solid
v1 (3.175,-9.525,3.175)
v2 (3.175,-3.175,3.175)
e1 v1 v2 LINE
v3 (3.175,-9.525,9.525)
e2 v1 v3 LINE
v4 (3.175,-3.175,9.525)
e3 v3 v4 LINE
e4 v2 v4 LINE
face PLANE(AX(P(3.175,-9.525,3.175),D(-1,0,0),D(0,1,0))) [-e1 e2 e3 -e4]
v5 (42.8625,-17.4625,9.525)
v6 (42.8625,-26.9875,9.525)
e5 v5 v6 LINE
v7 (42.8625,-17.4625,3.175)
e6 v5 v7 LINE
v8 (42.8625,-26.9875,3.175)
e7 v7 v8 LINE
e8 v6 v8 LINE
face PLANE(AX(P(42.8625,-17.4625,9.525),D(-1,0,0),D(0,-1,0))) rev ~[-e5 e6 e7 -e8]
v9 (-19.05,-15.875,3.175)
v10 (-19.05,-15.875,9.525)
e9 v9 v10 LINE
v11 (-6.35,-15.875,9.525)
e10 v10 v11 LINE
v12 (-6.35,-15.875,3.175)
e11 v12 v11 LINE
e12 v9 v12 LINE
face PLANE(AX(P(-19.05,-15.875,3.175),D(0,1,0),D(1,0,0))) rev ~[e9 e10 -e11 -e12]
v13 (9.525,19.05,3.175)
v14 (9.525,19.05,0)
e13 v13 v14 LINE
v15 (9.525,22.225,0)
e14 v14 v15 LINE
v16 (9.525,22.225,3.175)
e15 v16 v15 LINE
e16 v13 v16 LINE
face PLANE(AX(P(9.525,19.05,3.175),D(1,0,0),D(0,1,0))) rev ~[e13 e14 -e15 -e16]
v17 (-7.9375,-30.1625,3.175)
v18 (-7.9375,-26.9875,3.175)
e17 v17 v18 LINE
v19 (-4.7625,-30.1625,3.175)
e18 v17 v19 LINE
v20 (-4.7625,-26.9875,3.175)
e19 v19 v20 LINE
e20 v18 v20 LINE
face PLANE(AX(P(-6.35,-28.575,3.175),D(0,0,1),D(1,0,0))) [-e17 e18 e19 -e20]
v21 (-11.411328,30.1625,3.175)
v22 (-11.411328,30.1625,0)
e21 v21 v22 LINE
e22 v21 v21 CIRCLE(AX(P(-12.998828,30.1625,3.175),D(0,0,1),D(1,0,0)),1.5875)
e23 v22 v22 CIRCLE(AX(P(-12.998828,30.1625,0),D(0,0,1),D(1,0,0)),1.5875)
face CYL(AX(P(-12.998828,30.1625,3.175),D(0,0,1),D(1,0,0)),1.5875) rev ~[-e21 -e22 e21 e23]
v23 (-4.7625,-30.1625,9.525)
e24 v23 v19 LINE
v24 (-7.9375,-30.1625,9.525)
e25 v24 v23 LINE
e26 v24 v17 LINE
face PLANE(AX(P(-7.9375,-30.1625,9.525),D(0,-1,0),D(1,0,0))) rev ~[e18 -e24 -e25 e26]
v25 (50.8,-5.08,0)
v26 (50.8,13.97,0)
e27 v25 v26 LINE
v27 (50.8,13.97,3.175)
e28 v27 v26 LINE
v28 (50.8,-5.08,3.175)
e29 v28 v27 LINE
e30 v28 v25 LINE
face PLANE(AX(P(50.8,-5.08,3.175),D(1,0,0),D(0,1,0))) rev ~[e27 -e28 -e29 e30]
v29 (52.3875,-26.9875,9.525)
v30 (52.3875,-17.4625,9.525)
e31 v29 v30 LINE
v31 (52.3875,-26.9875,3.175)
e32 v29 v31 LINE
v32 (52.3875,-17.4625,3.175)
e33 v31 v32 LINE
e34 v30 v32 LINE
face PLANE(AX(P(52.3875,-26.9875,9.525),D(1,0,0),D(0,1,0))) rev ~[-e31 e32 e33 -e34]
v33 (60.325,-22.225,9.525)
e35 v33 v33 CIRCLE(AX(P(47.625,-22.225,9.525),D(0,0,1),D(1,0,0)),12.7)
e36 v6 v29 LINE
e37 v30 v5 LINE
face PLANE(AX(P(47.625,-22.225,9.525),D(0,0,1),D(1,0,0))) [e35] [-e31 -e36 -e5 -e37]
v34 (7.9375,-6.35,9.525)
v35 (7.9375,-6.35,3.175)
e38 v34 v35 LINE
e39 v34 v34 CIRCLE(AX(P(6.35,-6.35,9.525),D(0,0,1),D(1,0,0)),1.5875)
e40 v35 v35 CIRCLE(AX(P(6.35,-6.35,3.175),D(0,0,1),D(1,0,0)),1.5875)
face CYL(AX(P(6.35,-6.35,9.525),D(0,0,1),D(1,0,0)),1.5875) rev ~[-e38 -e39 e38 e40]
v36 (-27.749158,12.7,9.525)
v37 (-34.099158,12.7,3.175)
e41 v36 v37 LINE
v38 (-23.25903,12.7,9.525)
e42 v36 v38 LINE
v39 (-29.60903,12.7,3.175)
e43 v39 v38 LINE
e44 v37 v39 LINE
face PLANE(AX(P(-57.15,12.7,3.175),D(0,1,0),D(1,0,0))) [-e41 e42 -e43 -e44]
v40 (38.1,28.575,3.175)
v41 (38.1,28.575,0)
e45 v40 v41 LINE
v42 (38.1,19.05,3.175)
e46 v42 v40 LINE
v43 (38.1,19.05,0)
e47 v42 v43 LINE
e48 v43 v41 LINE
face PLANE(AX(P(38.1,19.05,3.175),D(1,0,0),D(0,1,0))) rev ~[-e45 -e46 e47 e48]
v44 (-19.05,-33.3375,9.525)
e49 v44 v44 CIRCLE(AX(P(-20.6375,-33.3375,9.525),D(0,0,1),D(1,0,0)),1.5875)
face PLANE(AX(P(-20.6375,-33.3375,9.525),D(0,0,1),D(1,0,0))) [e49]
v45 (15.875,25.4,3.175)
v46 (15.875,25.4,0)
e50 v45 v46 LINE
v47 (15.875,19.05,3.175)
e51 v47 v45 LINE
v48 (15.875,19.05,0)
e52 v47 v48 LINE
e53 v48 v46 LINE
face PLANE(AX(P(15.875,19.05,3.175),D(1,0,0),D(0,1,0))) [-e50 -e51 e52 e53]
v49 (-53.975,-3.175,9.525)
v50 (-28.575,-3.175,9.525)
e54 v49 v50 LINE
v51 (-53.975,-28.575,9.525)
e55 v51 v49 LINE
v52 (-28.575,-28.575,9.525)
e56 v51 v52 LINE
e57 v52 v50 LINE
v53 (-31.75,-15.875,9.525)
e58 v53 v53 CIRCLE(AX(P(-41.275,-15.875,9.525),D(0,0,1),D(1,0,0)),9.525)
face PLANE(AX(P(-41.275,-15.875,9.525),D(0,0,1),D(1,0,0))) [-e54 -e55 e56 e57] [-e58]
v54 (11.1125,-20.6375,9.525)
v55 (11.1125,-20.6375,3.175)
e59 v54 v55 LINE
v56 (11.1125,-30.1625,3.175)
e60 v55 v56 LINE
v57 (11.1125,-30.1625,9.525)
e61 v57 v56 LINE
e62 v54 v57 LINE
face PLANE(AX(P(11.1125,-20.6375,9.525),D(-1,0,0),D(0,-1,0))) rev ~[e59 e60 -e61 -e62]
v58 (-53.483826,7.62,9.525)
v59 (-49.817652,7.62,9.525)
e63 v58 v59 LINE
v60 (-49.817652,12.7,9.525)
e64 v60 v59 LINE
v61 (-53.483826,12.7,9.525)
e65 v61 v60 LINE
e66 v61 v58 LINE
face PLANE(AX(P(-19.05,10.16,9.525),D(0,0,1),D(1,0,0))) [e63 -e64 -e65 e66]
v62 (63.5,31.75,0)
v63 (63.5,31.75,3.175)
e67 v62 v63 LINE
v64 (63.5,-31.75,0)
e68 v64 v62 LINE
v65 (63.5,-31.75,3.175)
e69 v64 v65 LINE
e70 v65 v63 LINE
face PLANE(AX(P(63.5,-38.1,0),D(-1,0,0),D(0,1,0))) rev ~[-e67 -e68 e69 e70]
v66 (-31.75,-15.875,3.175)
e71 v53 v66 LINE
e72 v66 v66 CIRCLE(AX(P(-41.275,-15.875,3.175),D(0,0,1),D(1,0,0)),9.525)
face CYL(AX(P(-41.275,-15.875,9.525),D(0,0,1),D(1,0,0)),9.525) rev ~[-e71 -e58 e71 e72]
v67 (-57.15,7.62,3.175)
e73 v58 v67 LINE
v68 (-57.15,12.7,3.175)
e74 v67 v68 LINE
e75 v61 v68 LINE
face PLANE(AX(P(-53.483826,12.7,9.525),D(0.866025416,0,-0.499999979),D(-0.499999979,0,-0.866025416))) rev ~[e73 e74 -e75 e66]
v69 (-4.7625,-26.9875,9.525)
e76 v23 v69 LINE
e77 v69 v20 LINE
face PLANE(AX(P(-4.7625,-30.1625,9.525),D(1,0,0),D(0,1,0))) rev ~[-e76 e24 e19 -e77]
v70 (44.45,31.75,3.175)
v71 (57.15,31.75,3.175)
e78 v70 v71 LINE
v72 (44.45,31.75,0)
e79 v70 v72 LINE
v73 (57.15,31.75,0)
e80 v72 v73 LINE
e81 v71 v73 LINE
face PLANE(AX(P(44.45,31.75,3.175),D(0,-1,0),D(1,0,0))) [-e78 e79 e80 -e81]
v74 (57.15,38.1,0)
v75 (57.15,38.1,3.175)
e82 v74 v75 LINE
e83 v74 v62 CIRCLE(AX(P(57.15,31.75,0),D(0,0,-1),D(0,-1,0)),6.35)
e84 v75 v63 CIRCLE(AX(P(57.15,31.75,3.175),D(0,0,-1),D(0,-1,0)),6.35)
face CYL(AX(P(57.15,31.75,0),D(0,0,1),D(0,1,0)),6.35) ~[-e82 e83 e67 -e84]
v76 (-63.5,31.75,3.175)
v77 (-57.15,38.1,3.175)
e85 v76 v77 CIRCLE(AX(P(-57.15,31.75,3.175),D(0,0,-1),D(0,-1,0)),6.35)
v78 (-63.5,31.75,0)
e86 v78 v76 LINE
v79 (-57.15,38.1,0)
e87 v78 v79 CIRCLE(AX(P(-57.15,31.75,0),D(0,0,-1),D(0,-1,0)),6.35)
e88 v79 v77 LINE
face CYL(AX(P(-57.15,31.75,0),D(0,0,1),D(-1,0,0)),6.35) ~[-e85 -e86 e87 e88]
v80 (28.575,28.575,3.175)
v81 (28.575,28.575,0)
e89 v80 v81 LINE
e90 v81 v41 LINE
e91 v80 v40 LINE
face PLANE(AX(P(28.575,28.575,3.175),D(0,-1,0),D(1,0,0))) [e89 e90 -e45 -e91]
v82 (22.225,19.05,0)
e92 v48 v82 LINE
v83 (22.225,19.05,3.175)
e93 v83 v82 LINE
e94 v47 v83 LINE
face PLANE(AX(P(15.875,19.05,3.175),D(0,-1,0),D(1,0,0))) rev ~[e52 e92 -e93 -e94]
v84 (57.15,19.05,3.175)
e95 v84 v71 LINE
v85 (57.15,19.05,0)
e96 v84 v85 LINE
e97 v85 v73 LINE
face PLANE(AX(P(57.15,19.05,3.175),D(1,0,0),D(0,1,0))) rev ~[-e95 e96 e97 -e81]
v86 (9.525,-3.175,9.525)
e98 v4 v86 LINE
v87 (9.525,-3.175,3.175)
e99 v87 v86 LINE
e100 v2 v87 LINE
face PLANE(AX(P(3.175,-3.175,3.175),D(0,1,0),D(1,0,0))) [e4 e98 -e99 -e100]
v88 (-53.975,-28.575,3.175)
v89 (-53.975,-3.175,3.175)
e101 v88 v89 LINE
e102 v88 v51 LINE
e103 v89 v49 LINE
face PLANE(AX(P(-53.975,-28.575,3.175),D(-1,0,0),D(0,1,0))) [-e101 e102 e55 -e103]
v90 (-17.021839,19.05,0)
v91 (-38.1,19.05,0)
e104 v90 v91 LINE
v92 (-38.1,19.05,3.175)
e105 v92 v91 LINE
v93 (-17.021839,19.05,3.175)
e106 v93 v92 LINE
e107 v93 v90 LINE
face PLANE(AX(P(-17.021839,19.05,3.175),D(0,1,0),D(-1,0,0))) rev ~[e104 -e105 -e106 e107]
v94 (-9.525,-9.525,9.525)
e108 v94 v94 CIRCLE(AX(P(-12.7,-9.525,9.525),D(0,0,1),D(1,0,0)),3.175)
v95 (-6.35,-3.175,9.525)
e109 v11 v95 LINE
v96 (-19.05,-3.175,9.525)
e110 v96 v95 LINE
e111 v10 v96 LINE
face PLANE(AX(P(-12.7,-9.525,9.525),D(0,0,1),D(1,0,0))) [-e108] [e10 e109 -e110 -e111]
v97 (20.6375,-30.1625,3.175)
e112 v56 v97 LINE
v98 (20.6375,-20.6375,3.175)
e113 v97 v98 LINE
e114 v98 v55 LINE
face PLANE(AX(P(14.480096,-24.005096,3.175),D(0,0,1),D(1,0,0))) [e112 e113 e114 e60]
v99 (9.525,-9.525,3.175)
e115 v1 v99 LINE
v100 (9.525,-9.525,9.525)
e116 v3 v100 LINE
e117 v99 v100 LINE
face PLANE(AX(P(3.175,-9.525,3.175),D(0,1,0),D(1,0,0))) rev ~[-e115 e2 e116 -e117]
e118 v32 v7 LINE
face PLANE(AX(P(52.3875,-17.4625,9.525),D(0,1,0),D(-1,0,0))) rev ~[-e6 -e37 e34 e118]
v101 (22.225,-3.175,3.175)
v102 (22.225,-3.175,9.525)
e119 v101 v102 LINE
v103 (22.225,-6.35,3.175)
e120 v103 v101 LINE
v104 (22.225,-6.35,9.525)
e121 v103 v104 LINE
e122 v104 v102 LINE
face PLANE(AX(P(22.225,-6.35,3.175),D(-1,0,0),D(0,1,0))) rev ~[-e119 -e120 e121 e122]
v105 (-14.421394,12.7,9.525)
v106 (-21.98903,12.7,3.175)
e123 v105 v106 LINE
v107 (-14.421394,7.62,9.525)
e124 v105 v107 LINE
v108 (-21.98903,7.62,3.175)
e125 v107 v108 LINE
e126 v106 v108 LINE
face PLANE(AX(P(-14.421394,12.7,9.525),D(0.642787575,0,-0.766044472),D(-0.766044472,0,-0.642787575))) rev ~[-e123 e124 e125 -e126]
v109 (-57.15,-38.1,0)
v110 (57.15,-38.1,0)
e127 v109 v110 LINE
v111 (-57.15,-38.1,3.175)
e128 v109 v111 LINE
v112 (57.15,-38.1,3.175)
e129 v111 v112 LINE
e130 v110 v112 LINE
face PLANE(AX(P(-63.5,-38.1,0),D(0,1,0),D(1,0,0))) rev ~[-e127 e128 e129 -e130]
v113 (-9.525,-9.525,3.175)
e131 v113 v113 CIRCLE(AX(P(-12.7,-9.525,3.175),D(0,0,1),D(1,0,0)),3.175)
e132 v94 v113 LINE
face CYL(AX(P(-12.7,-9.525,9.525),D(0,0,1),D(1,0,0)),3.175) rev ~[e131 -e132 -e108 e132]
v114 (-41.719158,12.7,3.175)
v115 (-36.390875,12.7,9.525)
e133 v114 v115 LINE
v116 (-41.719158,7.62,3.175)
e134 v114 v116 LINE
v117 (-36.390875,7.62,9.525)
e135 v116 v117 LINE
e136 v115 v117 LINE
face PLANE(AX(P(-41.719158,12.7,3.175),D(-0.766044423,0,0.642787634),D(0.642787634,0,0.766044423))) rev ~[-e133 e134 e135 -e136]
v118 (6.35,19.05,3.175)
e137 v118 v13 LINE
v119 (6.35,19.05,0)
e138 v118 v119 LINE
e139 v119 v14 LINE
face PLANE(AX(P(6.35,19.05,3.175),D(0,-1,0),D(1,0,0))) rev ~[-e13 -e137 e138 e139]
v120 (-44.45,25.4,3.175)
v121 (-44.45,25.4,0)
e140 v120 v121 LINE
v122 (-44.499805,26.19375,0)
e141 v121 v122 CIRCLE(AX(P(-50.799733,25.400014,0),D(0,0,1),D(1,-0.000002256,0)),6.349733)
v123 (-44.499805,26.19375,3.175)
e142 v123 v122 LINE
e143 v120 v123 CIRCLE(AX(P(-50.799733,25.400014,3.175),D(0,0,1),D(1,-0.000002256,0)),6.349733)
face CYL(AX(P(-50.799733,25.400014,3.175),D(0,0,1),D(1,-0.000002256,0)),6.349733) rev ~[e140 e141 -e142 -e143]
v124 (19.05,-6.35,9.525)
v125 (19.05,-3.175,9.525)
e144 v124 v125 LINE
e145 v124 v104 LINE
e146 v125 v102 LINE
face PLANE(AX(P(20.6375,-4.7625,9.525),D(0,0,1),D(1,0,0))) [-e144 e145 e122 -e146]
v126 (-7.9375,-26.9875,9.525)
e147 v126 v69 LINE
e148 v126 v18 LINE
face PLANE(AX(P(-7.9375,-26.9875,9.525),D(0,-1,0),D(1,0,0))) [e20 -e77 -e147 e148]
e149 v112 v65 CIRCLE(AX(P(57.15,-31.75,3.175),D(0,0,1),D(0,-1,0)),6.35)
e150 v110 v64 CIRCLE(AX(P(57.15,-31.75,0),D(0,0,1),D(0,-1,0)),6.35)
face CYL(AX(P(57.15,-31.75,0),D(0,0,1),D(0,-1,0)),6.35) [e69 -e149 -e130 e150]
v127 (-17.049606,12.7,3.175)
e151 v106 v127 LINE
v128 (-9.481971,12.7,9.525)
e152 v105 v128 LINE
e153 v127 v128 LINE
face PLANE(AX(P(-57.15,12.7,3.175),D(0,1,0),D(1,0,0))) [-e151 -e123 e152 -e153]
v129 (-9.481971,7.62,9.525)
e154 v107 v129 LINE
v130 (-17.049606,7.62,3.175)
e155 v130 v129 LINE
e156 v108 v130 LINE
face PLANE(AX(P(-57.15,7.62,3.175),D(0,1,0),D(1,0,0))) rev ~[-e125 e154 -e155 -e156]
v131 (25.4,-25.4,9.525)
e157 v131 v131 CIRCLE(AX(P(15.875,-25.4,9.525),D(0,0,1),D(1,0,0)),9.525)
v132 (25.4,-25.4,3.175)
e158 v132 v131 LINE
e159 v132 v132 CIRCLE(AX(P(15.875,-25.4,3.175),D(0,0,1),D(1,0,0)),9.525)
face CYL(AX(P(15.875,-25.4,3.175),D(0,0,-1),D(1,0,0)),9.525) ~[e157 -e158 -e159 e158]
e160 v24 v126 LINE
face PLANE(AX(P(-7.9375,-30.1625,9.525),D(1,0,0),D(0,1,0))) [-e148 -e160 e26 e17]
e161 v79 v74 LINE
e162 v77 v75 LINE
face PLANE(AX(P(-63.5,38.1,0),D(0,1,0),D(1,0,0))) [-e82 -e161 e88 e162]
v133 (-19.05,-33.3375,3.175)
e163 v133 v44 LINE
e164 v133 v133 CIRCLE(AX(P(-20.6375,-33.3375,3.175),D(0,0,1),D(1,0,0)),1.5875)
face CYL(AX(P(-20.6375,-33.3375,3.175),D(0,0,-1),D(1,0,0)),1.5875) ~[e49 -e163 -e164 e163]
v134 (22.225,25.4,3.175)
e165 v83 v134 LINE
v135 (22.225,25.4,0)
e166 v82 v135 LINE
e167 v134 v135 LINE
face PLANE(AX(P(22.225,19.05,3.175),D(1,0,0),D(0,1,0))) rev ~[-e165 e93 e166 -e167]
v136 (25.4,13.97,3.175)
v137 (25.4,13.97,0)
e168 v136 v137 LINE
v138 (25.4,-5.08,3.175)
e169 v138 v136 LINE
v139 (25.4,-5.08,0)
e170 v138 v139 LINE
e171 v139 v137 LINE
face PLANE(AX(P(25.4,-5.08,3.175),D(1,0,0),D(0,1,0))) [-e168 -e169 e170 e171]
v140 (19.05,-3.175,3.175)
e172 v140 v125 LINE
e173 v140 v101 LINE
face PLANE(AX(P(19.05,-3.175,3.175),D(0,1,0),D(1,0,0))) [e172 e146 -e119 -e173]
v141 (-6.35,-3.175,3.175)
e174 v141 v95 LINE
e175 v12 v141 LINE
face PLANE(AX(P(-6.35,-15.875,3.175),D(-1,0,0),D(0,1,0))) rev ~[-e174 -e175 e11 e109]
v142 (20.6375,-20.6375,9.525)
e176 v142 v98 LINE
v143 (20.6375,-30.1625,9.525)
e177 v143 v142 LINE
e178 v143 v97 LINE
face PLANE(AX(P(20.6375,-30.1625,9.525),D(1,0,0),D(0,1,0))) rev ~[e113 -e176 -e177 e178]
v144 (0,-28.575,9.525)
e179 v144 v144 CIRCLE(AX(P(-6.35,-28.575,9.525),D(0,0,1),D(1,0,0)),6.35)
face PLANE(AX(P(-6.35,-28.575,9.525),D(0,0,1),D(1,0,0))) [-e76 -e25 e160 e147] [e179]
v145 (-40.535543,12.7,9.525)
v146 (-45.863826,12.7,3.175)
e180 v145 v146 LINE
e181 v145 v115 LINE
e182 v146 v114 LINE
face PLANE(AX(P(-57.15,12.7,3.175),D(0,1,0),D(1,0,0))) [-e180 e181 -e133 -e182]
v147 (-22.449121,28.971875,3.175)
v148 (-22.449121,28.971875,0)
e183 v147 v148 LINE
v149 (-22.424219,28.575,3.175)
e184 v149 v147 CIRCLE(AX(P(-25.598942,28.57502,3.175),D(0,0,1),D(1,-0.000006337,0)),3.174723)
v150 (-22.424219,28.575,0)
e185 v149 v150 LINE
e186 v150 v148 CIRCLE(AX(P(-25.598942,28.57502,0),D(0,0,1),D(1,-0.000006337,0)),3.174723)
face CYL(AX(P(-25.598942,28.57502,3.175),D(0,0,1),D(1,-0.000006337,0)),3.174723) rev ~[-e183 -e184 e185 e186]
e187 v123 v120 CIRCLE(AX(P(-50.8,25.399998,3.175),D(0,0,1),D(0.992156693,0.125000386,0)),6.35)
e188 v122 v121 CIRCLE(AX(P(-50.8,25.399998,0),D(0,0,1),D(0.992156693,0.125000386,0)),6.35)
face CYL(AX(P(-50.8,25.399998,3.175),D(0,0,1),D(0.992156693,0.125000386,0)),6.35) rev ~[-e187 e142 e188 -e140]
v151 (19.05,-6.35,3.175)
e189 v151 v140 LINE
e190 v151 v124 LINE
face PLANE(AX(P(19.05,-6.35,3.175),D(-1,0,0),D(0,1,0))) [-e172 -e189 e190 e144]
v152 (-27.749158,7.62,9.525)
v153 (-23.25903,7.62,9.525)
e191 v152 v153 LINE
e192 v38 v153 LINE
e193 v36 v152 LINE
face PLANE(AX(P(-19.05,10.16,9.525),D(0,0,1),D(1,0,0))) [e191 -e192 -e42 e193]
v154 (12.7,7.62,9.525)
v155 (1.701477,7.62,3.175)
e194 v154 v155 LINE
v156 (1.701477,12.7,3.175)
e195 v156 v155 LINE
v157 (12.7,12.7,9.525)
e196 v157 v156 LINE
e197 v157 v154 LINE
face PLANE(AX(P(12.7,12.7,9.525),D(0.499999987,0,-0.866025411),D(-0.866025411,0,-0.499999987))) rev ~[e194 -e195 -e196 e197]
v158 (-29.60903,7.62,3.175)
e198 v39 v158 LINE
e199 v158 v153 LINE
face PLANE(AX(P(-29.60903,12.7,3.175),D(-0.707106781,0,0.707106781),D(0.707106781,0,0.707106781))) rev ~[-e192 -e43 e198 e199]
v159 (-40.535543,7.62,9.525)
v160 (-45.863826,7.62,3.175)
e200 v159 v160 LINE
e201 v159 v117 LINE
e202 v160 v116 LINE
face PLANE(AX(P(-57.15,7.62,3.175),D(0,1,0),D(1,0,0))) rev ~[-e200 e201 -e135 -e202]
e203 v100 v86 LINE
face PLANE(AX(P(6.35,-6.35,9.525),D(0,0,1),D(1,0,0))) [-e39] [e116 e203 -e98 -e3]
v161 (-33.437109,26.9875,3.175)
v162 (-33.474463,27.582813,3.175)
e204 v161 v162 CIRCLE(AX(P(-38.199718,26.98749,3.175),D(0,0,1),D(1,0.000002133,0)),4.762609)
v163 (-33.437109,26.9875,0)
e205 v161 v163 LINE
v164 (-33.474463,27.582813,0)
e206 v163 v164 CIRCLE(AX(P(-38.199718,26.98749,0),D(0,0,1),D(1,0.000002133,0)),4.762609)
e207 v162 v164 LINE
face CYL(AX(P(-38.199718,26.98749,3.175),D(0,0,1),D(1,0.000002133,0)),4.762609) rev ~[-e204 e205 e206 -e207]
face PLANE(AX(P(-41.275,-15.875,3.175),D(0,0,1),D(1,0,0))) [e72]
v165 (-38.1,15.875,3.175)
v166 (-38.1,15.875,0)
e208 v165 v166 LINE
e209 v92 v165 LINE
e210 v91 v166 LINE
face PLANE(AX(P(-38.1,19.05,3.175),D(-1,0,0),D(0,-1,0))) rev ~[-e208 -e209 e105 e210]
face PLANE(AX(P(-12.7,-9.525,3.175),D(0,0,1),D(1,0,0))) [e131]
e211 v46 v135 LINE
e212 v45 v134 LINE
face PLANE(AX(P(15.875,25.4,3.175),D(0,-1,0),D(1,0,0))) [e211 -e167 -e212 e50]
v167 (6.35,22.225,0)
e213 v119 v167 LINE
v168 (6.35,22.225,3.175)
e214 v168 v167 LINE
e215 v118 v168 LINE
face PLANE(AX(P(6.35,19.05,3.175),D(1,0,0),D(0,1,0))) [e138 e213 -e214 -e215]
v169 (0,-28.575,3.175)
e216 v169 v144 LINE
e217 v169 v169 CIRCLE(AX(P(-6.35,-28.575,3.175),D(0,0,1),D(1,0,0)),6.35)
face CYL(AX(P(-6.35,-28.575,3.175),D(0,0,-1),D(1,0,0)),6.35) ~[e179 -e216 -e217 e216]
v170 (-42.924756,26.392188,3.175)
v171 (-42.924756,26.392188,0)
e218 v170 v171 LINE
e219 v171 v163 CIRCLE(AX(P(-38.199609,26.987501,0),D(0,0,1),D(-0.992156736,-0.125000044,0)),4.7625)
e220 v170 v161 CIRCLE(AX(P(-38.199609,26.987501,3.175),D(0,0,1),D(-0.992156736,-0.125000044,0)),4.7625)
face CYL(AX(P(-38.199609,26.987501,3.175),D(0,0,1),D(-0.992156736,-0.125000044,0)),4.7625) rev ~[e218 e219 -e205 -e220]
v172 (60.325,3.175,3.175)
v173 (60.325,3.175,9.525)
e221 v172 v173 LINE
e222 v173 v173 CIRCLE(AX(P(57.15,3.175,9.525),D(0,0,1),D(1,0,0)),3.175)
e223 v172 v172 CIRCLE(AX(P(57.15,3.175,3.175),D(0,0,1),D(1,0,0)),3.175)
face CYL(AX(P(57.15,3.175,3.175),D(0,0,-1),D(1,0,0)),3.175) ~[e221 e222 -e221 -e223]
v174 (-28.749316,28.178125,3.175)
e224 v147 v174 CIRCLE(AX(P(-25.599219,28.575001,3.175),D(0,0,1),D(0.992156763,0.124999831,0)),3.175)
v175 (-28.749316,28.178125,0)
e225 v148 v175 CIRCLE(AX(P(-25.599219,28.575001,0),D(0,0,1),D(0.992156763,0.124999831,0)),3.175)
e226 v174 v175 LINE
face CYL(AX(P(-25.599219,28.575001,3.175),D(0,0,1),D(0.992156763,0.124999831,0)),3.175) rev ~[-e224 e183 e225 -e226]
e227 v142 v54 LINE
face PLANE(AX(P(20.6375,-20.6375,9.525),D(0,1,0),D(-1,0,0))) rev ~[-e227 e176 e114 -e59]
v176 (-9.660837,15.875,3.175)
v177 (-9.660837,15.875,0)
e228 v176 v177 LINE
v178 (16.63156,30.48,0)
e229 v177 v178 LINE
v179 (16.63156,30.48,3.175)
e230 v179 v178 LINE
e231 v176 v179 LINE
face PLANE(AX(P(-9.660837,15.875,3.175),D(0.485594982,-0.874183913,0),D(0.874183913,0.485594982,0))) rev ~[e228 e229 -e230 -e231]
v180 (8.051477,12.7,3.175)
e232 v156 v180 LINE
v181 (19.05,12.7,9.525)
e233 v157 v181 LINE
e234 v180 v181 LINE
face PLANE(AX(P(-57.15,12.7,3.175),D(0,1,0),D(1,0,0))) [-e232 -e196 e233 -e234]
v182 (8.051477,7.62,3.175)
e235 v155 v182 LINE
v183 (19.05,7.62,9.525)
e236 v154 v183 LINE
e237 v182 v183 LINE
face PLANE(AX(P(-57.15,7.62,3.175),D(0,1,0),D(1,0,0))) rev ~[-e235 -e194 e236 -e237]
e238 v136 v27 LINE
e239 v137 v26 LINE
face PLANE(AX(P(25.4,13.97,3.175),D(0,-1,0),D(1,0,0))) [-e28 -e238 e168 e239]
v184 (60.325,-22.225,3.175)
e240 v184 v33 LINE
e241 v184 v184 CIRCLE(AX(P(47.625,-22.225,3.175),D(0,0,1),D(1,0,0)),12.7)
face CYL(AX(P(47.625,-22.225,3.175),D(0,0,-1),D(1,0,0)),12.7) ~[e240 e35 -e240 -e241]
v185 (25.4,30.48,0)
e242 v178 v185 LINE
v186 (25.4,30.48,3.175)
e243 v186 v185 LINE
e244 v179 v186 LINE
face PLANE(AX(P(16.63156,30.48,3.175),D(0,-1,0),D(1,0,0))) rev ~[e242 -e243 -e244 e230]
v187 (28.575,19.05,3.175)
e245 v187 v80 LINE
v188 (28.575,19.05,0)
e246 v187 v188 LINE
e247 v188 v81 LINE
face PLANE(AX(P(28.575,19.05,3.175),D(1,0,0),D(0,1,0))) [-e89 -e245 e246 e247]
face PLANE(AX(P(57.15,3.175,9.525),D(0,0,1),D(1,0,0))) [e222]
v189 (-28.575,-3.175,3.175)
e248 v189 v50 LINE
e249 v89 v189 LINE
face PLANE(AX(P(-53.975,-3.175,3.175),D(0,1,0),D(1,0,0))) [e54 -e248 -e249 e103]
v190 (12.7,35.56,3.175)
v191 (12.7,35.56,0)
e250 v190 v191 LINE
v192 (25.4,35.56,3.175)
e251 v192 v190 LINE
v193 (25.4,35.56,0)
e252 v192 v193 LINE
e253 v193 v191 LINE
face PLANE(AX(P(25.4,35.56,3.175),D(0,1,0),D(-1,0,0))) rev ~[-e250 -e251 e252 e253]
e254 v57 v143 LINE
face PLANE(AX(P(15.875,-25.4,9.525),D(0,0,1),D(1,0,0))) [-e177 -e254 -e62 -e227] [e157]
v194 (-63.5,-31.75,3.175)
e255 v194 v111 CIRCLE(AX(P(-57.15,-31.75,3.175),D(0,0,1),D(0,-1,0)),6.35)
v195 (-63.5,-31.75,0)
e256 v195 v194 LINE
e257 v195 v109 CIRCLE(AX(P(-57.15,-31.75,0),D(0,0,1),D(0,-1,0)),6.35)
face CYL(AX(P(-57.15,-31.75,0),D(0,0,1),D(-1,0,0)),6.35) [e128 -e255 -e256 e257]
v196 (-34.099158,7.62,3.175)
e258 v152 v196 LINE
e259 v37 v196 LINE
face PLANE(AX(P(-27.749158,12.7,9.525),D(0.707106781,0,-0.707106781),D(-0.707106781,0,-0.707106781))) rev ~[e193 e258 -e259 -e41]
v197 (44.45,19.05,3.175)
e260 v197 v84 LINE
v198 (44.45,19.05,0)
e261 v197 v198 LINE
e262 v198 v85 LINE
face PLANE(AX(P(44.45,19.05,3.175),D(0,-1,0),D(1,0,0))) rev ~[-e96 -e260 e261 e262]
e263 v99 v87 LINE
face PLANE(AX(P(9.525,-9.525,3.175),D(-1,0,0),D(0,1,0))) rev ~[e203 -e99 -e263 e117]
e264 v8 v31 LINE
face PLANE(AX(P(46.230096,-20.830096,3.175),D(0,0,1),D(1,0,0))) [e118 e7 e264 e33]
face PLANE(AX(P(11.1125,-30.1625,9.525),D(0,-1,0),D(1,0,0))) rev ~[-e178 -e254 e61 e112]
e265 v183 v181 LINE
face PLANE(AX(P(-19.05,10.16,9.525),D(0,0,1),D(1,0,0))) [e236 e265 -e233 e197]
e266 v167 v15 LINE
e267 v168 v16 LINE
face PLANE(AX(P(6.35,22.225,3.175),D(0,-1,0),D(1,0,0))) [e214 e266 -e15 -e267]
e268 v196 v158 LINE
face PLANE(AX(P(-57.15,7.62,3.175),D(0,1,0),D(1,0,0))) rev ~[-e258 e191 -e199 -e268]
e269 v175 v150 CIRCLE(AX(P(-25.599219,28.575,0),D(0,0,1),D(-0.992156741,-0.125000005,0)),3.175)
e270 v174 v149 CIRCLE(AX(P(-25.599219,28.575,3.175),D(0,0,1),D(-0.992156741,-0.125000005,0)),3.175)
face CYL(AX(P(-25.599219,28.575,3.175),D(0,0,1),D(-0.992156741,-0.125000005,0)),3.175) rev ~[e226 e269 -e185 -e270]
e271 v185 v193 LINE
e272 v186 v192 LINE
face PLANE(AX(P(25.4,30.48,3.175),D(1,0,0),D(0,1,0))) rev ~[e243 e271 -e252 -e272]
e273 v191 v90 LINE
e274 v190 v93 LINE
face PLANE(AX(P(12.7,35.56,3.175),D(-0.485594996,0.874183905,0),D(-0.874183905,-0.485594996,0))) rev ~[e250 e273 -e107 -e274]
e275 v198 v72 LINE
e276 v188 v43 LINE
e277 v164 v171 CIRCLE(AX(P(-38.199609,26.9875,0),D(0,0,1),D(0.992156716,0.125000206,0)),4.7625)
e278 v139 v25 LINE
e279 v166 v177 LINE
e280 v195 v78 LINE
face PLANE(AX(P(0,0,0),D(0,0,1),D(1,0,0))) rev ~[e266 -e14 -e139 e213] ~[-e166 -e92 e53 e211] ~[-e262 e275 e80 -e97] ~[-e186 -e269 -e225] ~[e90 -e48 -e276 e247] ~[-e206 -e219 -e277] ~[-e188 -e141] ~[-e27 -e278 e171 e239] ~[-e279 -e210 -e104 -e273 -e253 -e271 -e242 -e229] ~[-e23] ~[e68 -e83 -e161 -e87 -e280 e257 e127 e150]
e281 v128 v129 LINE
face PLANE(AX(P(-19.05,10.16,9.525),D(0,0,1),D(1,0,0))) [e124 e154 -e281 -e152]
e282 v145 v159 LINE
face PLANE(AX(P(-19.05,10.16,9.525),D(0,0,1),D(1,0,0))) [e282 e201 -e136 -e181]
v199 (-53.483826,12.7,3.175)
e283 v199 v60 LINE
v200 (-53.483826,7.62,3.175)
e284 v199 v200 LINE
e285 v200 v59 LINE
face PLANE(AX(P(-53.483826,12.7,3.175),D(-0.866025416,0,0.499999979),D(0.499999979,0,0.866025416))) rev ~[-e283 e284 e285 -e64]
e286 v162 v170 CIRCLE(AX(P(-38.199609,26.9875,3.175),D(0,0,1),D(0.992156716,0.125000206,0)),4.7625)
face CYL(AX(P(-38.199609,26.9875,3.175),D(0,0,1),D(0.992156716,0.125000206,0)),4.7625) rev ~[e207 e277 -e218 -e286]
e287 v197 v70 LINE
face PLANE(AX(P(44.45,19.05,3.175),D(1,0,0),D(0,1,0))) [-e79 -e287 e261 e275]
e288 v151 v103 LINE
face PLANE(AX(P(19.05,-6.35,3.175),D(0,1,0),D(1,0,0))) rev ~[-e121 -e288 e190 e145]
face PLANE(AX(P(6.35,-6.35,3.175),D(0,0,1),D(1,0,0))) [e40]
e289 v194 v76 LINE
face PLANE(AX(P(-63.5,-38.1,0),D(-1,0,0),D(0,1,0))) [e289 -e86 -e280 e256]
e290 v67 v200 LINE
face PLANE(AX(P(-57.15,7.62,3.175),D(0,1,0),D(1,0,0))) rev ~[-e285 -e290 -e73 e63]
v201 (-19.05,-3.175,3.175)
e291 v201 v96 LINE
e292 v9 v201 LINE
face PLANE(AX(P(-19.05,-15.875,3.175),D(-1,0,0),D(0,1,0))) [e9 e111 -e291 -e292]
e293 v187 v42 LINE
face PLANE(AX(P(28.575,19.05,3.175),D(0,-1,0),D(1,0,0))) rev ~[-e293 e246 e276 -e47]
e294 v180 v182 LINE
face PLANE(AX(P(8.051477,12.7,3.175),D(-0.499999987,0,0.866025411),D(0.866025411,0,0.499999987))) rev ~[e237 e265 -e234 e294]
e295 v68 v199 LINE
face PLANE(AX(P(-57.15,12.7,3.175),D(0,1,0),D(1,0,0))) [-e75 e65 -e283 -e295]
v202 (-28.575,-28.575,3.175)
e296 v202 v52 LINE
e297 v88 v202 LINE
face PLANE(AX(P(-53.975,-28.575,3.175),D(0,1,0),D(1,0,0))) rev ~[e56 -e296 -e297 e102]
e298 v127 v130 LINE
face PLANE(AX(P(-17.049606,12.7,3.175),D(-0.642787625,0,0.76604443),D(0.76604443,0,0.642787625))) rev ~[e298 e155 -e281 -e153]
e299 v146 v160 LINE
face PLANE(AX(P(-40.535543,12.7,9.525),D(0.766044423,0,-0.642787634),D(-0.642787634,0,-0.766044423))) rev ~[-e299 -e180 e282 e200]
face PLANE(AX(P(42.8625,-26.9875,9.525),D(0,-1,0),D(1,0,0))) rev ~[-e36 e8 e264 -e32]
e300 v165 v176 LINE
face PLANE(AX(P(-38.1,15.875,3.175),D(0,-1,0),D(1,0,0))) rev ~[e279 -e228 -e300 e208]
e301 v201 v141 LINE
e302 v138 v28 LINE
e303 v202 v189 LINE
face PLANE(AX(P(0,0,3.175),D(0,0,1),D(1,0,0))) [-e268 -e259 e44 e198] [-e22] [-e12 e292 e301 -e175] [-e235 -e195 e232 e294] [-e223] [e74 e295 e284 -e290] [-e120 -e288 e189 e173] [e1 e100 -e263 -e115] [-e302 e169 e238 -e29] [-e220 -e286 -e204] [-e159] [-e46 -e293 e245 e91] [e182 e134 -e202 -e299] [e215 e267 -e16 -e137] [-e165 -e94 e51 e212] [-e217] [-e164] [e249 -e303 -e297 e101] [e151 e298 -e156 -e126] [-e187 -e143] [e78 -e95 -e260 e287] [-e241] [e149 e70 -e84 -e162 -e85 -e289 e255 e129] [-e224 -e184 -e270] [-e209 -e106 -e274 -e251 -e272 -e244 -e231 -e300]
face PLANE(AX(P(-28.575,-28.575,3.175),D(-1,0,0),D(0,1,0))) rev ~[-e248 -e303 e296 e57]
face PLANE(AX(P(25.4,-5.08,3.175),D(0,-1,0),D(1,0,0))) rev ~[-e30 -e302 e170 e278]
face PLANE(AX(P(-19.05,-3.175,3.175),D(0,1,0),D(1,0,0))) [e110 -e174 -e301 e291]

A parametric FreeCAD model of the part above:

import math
import FreeCAD as App
import Part
import Sketcher

V = App.Vector
Q = App.Units.Quantity


def edges_at(feature, points):
    """Names of the edges that pass closest to the given points."""
    edges = feature.Shape.Edges
    near = lambda p: min(range(len(edges)), key=lambda i: edges[i].distToShape(Part.Vertex(*p))[0])
    return sorted({f"Edge{near(p) + 1}" for p in points})


def add_polygon(sketch, points):
    """Adds a closed chain of lines whose ends are joined by coincident constraints."""
    first, n = sketch.GeometryCount, len(points)
    for a, b in zip(points, points[1:] + points[:1]):
        sketch.addGeometry(Part.LineSegment(App.Vector(*a, 0), App.Vector(*b, 0)), False)
    for i in range(n):
        sketch.addConstraint(Sketcher.Constraint("Coincident", first + i, 2, first + (i + 1) % n, 1))

doc = App.newDocument("Part")
params = doc.addObject("Spreadsheet::Sheet", "Params")
for row, (alias, value) in enumerate([
    ("sketch1_width", "5 in"),
    ("sketch1_height", "3 in"),
    ("pad1_length", "0.125 in"),
    ("sketch2_radius", "0.25 in"),
    ("sketch2_diameter", "0.125 in"),
    ("sketch2_width", "0.5 in"),
    ("sketch2_height", "0.5 in"),
    ("sketch2_radius2", "0.125 in"),
    ("sketch3_width", "1 in"),
    ("sketch3_width2", "0.5 in"),
    ("sketch3_width3", "0.25 in"),
    ("sketch3_width4", "0.125 in"),
    ("pad2_length", "0.25 in"),
    ("sketch4_diameter", "0.75 in"),
    ("sketch4_diameter2", "0.25 in"),
    ("sketch4_diameter3", "0.125 in"),
    ("pocket2_length", "0.25 in"),
    ("sketch5_diameter", "1 in"),
    ("sketch5_diameter2", "0.5 in"),
    ("sketch5_diameter3", "0.75 in"),
    ("sketch5_diameter4", "0.25 in"),
    ("sketch5_diameter5", "0.125 in"),
    ("pad3_length", "0.25 in"),
    ("sketch6_width", "0.375 in"),
    ("pocket3_length", "0.25 in"),
    ("sketch7_width", "3 in"),
    ("sketch7_height", "0.2 in"),
    ("pad4_length", "0.25 in"),
    ("sketch8_width", "0.3 in"),
    ("sketch8_length", "0.5 in"),
    ("pocket4_length", "0.2 in"),
    ("fillet_radius", "0.25 in"),
    ("sketch9_width", "0.5 in"),
    ("sketch9_height", "0.2 in"),
    ("sketch9_height2", "0.125 in"),
    ("sketch10_width", "1 in"),
    ("sketch10_height", "0.75 in"),
], start=1):
    params.set(f"A{row}", alias)
    params.set(f"B{row}", "=" + value)
    params.setAlias(f"B{row}", alias)

body = doc.addObject("PartDesign::Body", "Body")

sketch1 = body.newObject("Sketcher::SketchObject", "Sketch")
sketch1.AttachmentSupport = (doc.getObject("XY_Plane"), [""])
sketch1.MapMode = "FlatFace"
add_polygon(sketch1, [(-63.5, 38.1), (-63.5, -38.1), (63.5, -38.1), (63.5, 38.1)])
sketch1.addConstraint([
    Sketcher.Constraint("Vertical", 0),
    Sketcher.Constraint("Horizontal", 1),
    Sketcher.Constraint("Vertical", 2),
    Sketcher.Constraint("Horizontal", 3),
    Sketcher.Constraint("Symmetric", 0, 2, 2, 2, -1, 1),
    Sketcher.Constraint("DistanceX", 1, 1, 1, 2, Q("5 in")),
    Sketcher.Constraint("DistanceY", 0, 2, 0, 1, Q("3 in")),
])
sketch1.setExpression("Constraints[9]", "Params.sketch1_width")
sketch1.setExpression("Constraints[10]", "Params.sketch1_height")
pad1 = body.newObject("PartDesign::Pad", "Pad")
pad1.Profile = sketch1
pad1.setExpression("Length", "Params.pad1_length")

sketch2 = body.newObject("Sketcher::SketchObject", "Sketch001")
sketch2.AttachmentSupport = (doc.getObject("XY_Plane"), [""])
sketch2.MapMode = "FlatFace"
sketch2.AttachmentOffset = App.Placement(V(0, 0, 0.125 * 25.4), App.Rotation())
sketch2.addGeometry(Part.ArcOfCircle(Part.Circle(V(-50.8, 25.399998, 0), V(0, 0, 1), 6.35), math.radians(7.180778), math.radians(360.000022)), False)
sketch2.addGeometry(Part.ArcOfCircle(Part.Circle(V(-50.799733, 25.400014, 0), V(0, 0, 1), 6.349733), math.radians(-0.000129), math.radians(7.18093)), False)
sketch2.addGeometry(Part.ArcOfCircle(Part.Circle(V(-25.599219, 28.575001, 0), V(0, 0, 1), 3.175), math.radians(7.180746), math.radians(187.180766)), False)
sketch2.addGeometry(Part.ArcOfCircle(Part.Circle(V(-25.599219, 28.575, 0), V(0, 0, 1), 3.175), math.radians(-172.819244), math.radians(0)), False)
sketch2.addGeometry(Part.ArcOfCircle(Part.Circle(V(-25.598942, 28.57502, 0), V(0, 0, 1), 3.174723), math.radians(-0.000363), math.radians(7.18102)), False)
sketch2.addGeometry(Part.ArcOfCircle(Part.Circle(V(-38.199609, 26.9875, 0), V(0, 0, 1), 4.7625), math.radians(7.180768), math.radians(187.180744)), False)
sketch2.addGeometry(Part.ArcOfCircle(Part.Circle(V(-38.199609, 26.987501, 0), V(0, 0, 1), 4.7625), math.radians(-172.819242), math.radians(-0.000009)), False)
sketch2.addGeometry(Part.ArcOfCircle(Part.Circle(V(-38.199718, 26.98749, 0), V(0, 0, 1), 4.762609), math.radians(0.000122), math.radians(7.18072)), False)
sketch2.addGeometry(Part.Circle(V(-12.998828, 30.1625, 0), V(0, 0, 1), 1.5875), False)
add_polygon(sketch2, [(44.45, 31.75), (44.45, 19.05), (57.15, 19.05), (57.15, 31.75)])
add_polygon(sketch2, [(28.575, 28.575), (28.575, 19.05), (38.1, 19.05), (38.1, 28.575)])
add_polygon(sketch2, [(15.875, 25.4), (15.875, 19.05), (22.225, 19.05), (22.225, 25.4)])
add_polygon(sketch2, [(6.35, 22.225), (6.35, 19.05), (9.525, 19.05), (9.525, 22.225)])
sketch2.addConstraint([
    Sketcher.Constraint("Coincident", 0, 1, 1, 2),
    Sketcher.Constraint("Coincident", 1, 1, 0, 2),
    Sketcher.Constraint("Coincident", 2, 2, 3, 1),
    Sketcher.Constraint("Coincident", 3, 2, 4, 1),
    Sketcher.Constraint("Coincident", 4, 2, 2, 1),
    Sketcher.Constraint("Coincident", 5, 2, 6, 1),
    Sketcher.Constraint("Coincident", 6, 2, 7, 1),
    Sketcher.Constraint("Coincident", 7, 2, 5, 1),
    Sketcher.Constraint("Vertical", 9),
    Sketcher.Constraint("Horizontal", 10),
    Sketcher.Constraint("Vertical", 11),
    Sketcher.Constraint("Horizontal", 12),
    Sketcher.Constraint("Vertical", 13),
    Sketcher.Constraint("Horizontal", 14),
    Sketcher.Constraint("Vertical", 15),
    Sketcher.Constraint("Horizontal", 16),
    Sketcher.Constraint("Vertical", 17),
    Sketcher.Constraint("Horizontal", 18),
    Sketcher.Constraint("Vertical", 19),
    Sketcher.Constraint("Horizontal", 20),
    Sketcher.Constraint("Vertical", 21),
    Sketcher.Constraint("Horizontal", 22),
    Sketcher.Constraint("Vertical", 23),
    Sketcher.Constraint("Horizontal", 24),
    Sketcher.Constraint("Coincident", 3, 3, 2, 3),
    Sketcher.Constraint("Coincident", 6, 3, 5, 3),
    Sketcher.Constraint("Radius", 0, Q("0.25 in")),
    Sketcher.Constraint("Diameter", 8, Q("0.125 in")),
    Sketcher.Constraint("DistanceX", 10, 1, 10, 2, Q("0.5 in")),
    Sketcher.Constraint("DistanceY", 9, 2, 9, 1, Q("0.5 in")),
    Sketcher.Constraint("DistanceX", 0, 3, -1, 1, Q("2 in")),
    Sketcher.Constraint("DistanceY", -1, 1, 0, 3, Q("0.9999999 in")),
    Sketcher.Constraint("DistanceY", -1, 1, 1, 1, Q("1 in")),
    Sketcher.Constraint("DistanceY", -1, 1, 19, 2, Q("1 in")),
    Sketcher.Constraint("Radius", 2, Q("0.125 in")),
    Sketcher.Constraint("Radius", 5, Q("0.1875 in")),
    Sketcher.Constraint("DistanceX", 18, 1, 18, 2, Q("0.25 in")),
    Sketcher.Constraint("DistanceY", 17, 2, 17, 1, Q("0.25 in")),
    Sketcher.Constraint("DistanceX", -1, 1, 14, 2, Q("1.5 in")),
    Sketcher.Constraint("DistanceY", 13, 2, 12, 2, Q("0.5 in")),
    Sketcher.Constraint("DistanceX", 17, 2, 13, 2, Q("0.5 in")),
    Sketcher.Constraint("DistanceX", 22, 2, 18, 2, Q("0.5 in")),
    Sketcher.Constraint("DistanceX", 14, 1, 14, 2, Q("0.375 in")),
    Sketcher.Constraint("DistanceX", 22, 1, 22, 2, Q("0.125 in")),
    Sketcher.Constraint("DistanceY", 13, 2, 13, 1, Q("0.375 in")),
    Sketcher.Constraint("DistanceY", 21, 2, 21, 1, Q("0.125 in")),
    Sketcher.Constraint("DistanceX", -1, 1, 9, 2, Q("1.75 in")),
    Sketcher.Constraint("DistanceY", -1, 1, 9, 2, Q("0.75 in")),
    Sketcher.Constraint("DistanceY", -1, 1, 21, 2, Q("0.75 in")),
    Sketcher.Constraint("DistanceY", -1, 1, 2, 3, Q("1.125 in")),
    Sketcher.Constraint("DistanceY", -1, 1, 5, 3, Q("1.0625 in")),
    Sketcher.Constraint("DistanceY", -1, 1, 8, 3, Q("1.1875 in")),
    Sketcher.Constraint("DistanceY", -1, 1, 0, 1, Q("1.03125 in")),
    Sketcher.Constraint("DistanceY", -1, 1, 2, 2, Q("1.109375 in")),
    Sketcher.Constraint("DistanceY", -1, 1, 3, 2, Q("1.125 in")),
    Sketcher.Constraint("DistanceY", -1, 1, 4, 2, Q("1.140625 in")),
    Sketcher.Constraint("DistanceY", -1, 1, 6, 2, Q("1.0625 in")),
    Sketcher.Constraint("Radius", 7, 4.762609),
    Sketcher.Constraint("Radius", 1, 6.349733),
    Sketcher.Constraint("Radius", 4, 3.174723),
    Sketcher.Constraint("DistanceX", 7, 3, 3, 3, 12.600499),
    Sketcher.Constraint("DistanceY", 5, 2, 7, 3, 0.595302),
    Sketcher.Constraint("DistanceX", 2, 3, -1, 1, 25.599219),
    Sketcher.Constraint("DistanceX", 2, 3, 8, 3, 12.600391),
    Sketcher.Constraint("DistanceX", 7, 2, -1, 1, 33.474463),
])
sketch2.setExpression("Constraints[42]", "Params.sketch2_radius")
sketch2.setExpression("Constraints[43]", "Params.sketch2_diameter")
sketch2.setExpression("Constraints[44]", "Params.sketch2_width")
sketch2.setExpression("Constraints[45]", "Params.sketch2_height")
sketch2.setExpression("Constraints[50]", "Params.sketch2_radius2")
pocket1 = body.newObject("PartDesign::Pocket", "Pocket")
pocket1.Profile = sketch2
pocket1.Type = "ThroughAll"

sketch3 = body.newObject("Sketcher::SketchObject", "Sketch002")
sketch3.AttachmentSupport = (doc.getObject("XY_Plane"), [""])
sketch3.MapMode = "FlatFace"
sketch3.AttachmentOffset = App.Placement(V(0, 0, 0.125 * 25.4), App.Rotation())
add_polygon(sketch3, [(-53.975, -3.175), (-53.975, -28.575), (-28.575, -28.575), (-28.575, -3.175)])
add_polygon(sketch3, [(-19.05, -3.175), (-19.05, -15.875), (-6.35, -15.875), (-6.35, -3.175)])
add_polygon(sketch3, [(3.175, -3.175), (3.175, -9.525), (9.525, -9.525), (9.525, -3.175)])
add_polygon(sketch3, [(19.05, -3.175), (19.05, -6.35), (22.225, -6.35), (22.225, -3.175)])
sketch3.addConstraint([
    Sketcher.Constraint("Vertical", 0),
    Sketcher.Constraint("Horizontal", 1),
    Sketcher.Constraint("Vertical", 2),
    Sketcher.Constraint("Horizontal", 3),
    Sketcher.Constraint("Vertical", 4),
    Sketcher.Constraint("Horizontal", 5),
    Sketcher.Constraint("Vertical", 6),
    Sketcher.Constraint("Horizontal", 7),
    Sketcher.Constraint("Vertical", 8),
    Sketcher.Constraint("Horizontal", 9),
    Sketcher.Constraint("Vertical", 10),
    Sketcher.Constraint("Horizontal", 11),
    Sketcher.Constraint("Vertical", 12),
    Sketcher.Constraint("Horizontal", 13),
    Sketcher.Constraint("Vertical", 14),
    Sketcher.Constraint("Horizontal", 15),
    Sketcher.Constraint("Symmetric", 7, 2, 15, 2, -2),
    Sketcher.Constraint("Horizontal", 3, 2, 6, 2),
    Sketcher.Constraint("Horizontal", 7, 2, 10, 2),
    Sketcher.Constraint("Equal", 3, 0),
    Sketcher.Constraint("Equal", 7, 4),
    Sketcher.Constraint("Equal", 11, 8),
    Sketcher.Constraint("Equal", 15, 12),
    Sketcher.Constraint("DistanceX", 1, 1, 1, 2, Q("1 in")),
    Sketcher.Constraint("DistanceX", 5, 1, 5, 2, Q("0.5 in")),
    Sketcher.Constraint("DistanceX", 6, 2, 12, 2, Q("1 in")),
    Sketcher.Constraint("DistanceX", 9, 1, 9, 2, Q("0.25 in")),
    Sketcher.Constraint("DistanceX", 9, 2, 13, 2, Q("0.5 in")),
    Sketcher.Constraint("DistanceX", 13, 1, 13, 2, Q("0.125 in")),
    Sketcher.Constraint("DistanceY", 12, 2, -1, 1, Q("0.25 in")),
    Sketcher.Constraint("DistanceX", 2, 2, 8, 2, Q("1.25 in")),
])
sketch3.setExpression("Constraints[39]", "Params.sketch3_width")
sketch3.setExpression("Constraints[40]", "Params.sketch3_width2")
sketch3.setExpression("Constraints[42]", "Params.sketch3_width3")
sketch3.setExpression("Constraints[44]", "Params.sketch3_width4")
pad2 = body.newObject("PartDesign::Pad", "Pad001")
pad2.Profile = sketch3
pad2.setExpression("Length", "Params.pad2_length")

sketch4 = body.newObject("Sketcher::SketchObject", "Sketch003")
sketch4.AttachmentSupport = (doc.getObject("XY_Plane"), [""])
sketch4.MapMode = "FlatFace"
sketch4.AttachmentOffset = App.Placement(V(0, 0, 0.375 * 25.4), App.Rotation())
sketch4.addGeometry([
    Part.Circle(V(-41.275, -15.875, 0), V(0, 0, 1), 9.525),
    Part.Circle(V(-12.7, -9.525, 0), V(0, 0, 1), 3.175),
    Part.Circle(V(6.35, -6.35, 0), V(0, 0, 1), 1.5875),
], False)
sketch4.addConstraint([
    Sketcher.Constraint("Diameter", 0, Q("0.75 in")),
    Sketcher.Constraint("Diameter", 1, Q("0.25 in")),
    Sketcher.Constraint("Diameter", 2, Q("0.125 in")),
    Sketcher.Constraint("DistanceX", 1, 3, -1, 1, Q("0.5 in")),
    Sketcher.Constraint("DistanceX", -1, 1, 2, 3, Q("0.25 in")),
    Sketcher.Constraint("DistanceY", 2, 3, -1, 1, Q("0.25 in")),
    Sketcher.Constraint("DistanceY", 0, 3, 1, 3, Q("0.25 in")),
    Sketcher.Constraint("DistanceX", 0, 3, -1, 1, Q("1.625 in")),
    Sketcher.Constraint("DistanceY", 0, 3, -1, 1, Q("0.625 in")),
])
sketch4.setExpression("Constraints[0]", "Params.sketch4_diameter")
sketch4.setExpression("Constraints[1]", "Params.sketch4_diameter2")
sketch4.setExpression("Constraints[2]", "Params.sketch4_diameter3")
pocket2 = body.newObject("PartDesign::Pocket", "Pocket001")
pocket2.Profile = sketch4
pocket2.setExpression("Length", "Params.pocket2_length")

sketch5 = body.newObject("Sketcher::SketchObject", "Sketch004")
sketch5.AttachmentSupport = (doc.getObject("XY_Plane"), [""])
sketch5.MapMode = "FlatFace"
sketch5.AttachmentOffset = App.Placement(V(0, 0, 0.125 * 25.4), App.Rotation())
sketch5.addGeometry([
    Part.Circle(V(47.625, -22.225, 0), V(0, 0, 1), 12.7),
    Part.Circle(V(-6.35, -28.575, 0), V(0, 0, 1), 6.35),
    Part.Circle(V(15.875, -25.4, 0), V(0, 0, 1), 9.525),
    Part.Circle(V(57.15, 3.175, 0), V(0, 0, 1), 3.175),
    Part.Circle(V(-20.6375, -33.3375, 0), V(0, 0, 1), 1.5875),
], False)
sketch5.addConstraint([
    Sketcher.Constraint("Diameter", 0, Q("1 in")),
    Sketcher.Constraint("Diameter", 1, Q("0.5 in")),
    Sketcher.Constraint("Diameter", 2, Q("0.75 in")),
    Sketcher.Constraint("Diameter", 3, Q("0.25 in")),
    Sketcher.Constraint("Diameter", 4, Q("0.125 in")),
    Sketcher.Constraint("DistanceY", 2, 3, -1, 1, Q("1 in")),
    Sketcher.Constraint("DistanceY", 0, 3, 3, 3, Q("1 in")),
    Sketcher.Constraint("DistanceX", 1, 3, 3, 3, Q("2.5 in")),
    Sketcher.Constraint("DistanceX", 1, 3, -1, 1, Q("0.25 in")),
    Sketcher.Constraint("DistanceY", 1, 3, 0, 3, Q("0.25 in")),
    Sketcher.Constraint("DistanceX", 2, 3, 0, 3, Q("1.25 in")),
    Sketcher.Constraint("DistanceX", -1, 1, 0, 3, Q("1.875 in")),
    Sketcher.Constraint("DistanceY", 0, 3, -1, 1, Q("0.875 in")),
    Sketcher.Constraint("DistanceX", 4, 3, -1, 1, Q("0.8125 in")),
    Sketcher.Constraint("DistanceY", 4, 3, -1, 1, Q("1.3125 in")),
])
sketch5.setExpression("Constraints[0]", "Params.sketch5_diameter")
sketch5.setExpression("Constraints[1]", "Params.sketch5_diameter2")
sketch5.setExpression("Constraints[2]", "Params.sketch5_diameter3")
sketch5.setExpression("Constraints[3]", "Params.sketch5_diameter4")
sketch5.setExpression("Constraints[4]", "Params.sketch5_diameter5")
pad3 = body.newObject("PartDesign::Pad", "Pad002")
pad3.Profile = sketch5
pad3.setExpression("Length", "Params.pad3_length")

sketch6 = body.newObject("Sketcher::SketchObject", "Sketch005")
sketch6.AttachmentSupport = (doc.getObject("XY_Plane"), [""])
sketch6.MapMode = "FlatFace"
sketch6.AttachmentOffset = App.Placement(V(0, 0, 0.375 * 25.4), App.Rotation())
add_polygon(sketch6, [(52.3875, -17.4625), (42.8625, -17.4625), (42.8625, -26.9875), (52.3875, -26.9875)])
add_polygon(sketch6, [(20.6375, -20.6375), (11.1125, -20.6375), (11.1125, -30.1625), (20.6375, -30.1625)])
add_polygon(sketch6, [(-7.9375, -26.9875), (-7.9375, -30.1625), (-4.7625, -30.1625), (-4.7625, -26.9875)])
sketch6.addConstraint([
    Sketcher.Constraint("Horizontal", 0),
    Sketcher.Constraint("Vertical", 1),
    Sketcher.Constraint("Horizontal", 2),
    Sketcher.Constraint("Vertical", 3),
    Sketcher.Constraint("Horizontal", 4),
    Sketcher.Constraint("Vertical", 5),
    Sketcher.Constraint("Horizontal", 6),
    Sketcher.Constraint("Vertical", 7),
    Sketcher.Constraint("Vertical", 8),
    Sketcher.Constraint("Horizontal", 9),
    Sketcher.Constraint("Vertical", 10),
    Sketcher.Constraint("Horizontal", 11),
    Sketcher.Constraint("Horizontal", 6, 2, 8, 2),
    Sketcher.Constraint("Horizontal", 2, 2, 10, 2),
    Sketcher.Constraint("Equal", 2, 4),
    Sketcher.Constraint("Equal", 6, 1),
    Sketcher.Constraint("Equal", 3, 5),
    Sketcher.Constraint("Equal", 11, 8),
    Sketcher.Constraint("DistanceX", 8, 2, 1, 2, Q("2 in")),
    Sketcher.Constraint("DistanceX", 9, 2, 6, 2, Q("1 in")),
    Sketcher.Constraint("DistanceY", 5, 2, 0, 2, Q("0.5 in")),
    Sketcher.Constraint("DistanceX", 0, 2, 0, 1, Q("0.375 in")),
    Sketcher.Constraint("DistanceX", -1, 1, 0, 2, Q("1.6875 in")),
    Sketcher.Constraint("DistanceY", 0, 2, -1, 1, Q("0.6875 in")),
])
sketch6.setExpression("Constraints[33]", "Params.sketch6_width")
pocket3 = body.newObject("PartDesign::Pocket", "Pocket002")
pocket3.Profile = sketch6
pocket3.setExpression("Length", "Params.pocket3_length")

sketch7 = body.newObject("Sketcher::SketchObject", "Sketch006")
sketch7.AttachmentSupport = (doc.getObject("XY_Plane"), [""])
sketch7.MapMode = "FlatFace"
sketch7.AttachmentOffset = App.Placement(V(0, 0, 0.125 * 25.4), App.Rotation())
add_polygon(sketch7, [(-57.15, 12.7), (-57.15, 7.62), (19.05, 7.62), (19.05, 12.7)])
sketch7.addConstraint([
    Sketcher.Constraint("Vertical", 0),
    Sketcher.Constraint("Horizontal", 1),
    Sketcher.Constraint("Vertical", 2),
    Sketcher.Constraint("Horizontal", 3),
    Sketcher.Constraint("DistanceX", 1, 1, 1, 2, Q("3 in")),
    Sketcher.Constraint("DistanceY", 0, 2, 0, 1, Q("0.2 in")),
    Sketcher.Constraint("DistanceY", -1, 1, 0, 2, Q("0.3 in")),
    Sketcher.Constraint("DistanceX", 0, 2, -1, 1, Q("2.25 in")),
])
sketch7.setExpression("Constraints[8]", "Params.sketch7_width")
sketch7.setExpression("Constraints[9]", "Params.sketch7_height")
pad4 = body.newObject("PartDesign::Pad", "Pad003")
pad4.Profile = sketch7
pad4.setExpression("Length", "Params.pad4_length")

sketch8 = body.newObject("Sketcher::SketchObject", "Sketch007")
sketch8.AttachmentSupport = (doc.getObject("XZ_Plane"), [""])
sketch8.MapMode = "FlatFace"
sketch8.AttachmentOffset = App.Placement(V(0, 0, -0.5 * 25.4), App.Rotation())
add_polygon(sketch8, [(-53.483826, 9.525), (-57.15, 3.175), (-57.15, 9.525)])
add_polygon(sketch8, [(-45.863826, 3.175), (-53.483826, 3.175), (-49.817652, 9.525), (-40.535543, 9.525)])
add_polygon(sketch8, [(-34.099158, 3.175), (-41.719158, 3.175), (-36.390875, 9.525), (-27.749158, 9.525)])
add_polygon(sketch8, [(-14.421394, 9.525), (-21.98903, 3.175), (-29.60903, 3.175), (-23.25903, 9.525)])
add_polygon(sketch8, [(1.701477, 3.175), (-17.049606, 3.175), (-9.481971, 9.525), (12.7, 9.525)])
add_polygon(sketch8, [(19.05, 3.175), (8.051477, 3.175), (19.05, 9.525)])
sketch8.addConstraint([
    Sketcher.Constraint("Vertical", 1),
    Sketcher.Constraint("Horizontal", 2),
    Sketcher.Constraint("Horizontal", 3),
    Sketcher.Constraint("Horizontal", 5),
    Sketcher.Constraint("Horizontal", 7),
    Sketcher.Constraint("Horizontal", 9),
    Sketcher.Constraint("Horizontal", 12),
    Sketcher.Constraint("Horizontal", 14),
    Sketcher.Constraint("Horizontal", 15),
    Sketcher.Constraint("Horizontal", 17),
    Sketcher.Constraint("Horizontal", 19),
    Sketcher.Constraint("Vertical", 21),
    Sketcher.Constraint("Parallel", 0, 4),
    Sketcher.Constraint("Parallel", 6, 8),
    Sketcher.Constraint("Parallel", 10, 13),
    Sketcher.Constraint("Parallel", 11, 16),
    Sketcher.Constraint("Parallel", 18, 20),
    Sketcher.Constraint("Horizontal", 0, 2, 3, 2),
    Sketcher.Constraint("Horizontal", 2, 2, 4, 2),
    Sketcher.Constraint("Horizontal", 6, 2, 7, 2),
    Sketcher.Constraint("Horizontal", 5, 2, 8, 2),
    Sketcher.Constraint("Horizontal", 10, 2, 11, 2),
    Sketcher.Constraint("Horizontal", 9, 2, 13, 2),
    Sketcher.Constraint("Horizontal", 12, 2, 15, 2),
    Sketcher.Constraint("Horizontal", 14, 2, 16, 2),
    Sketcher.Constraint("Horizontal", 18, 2, 19, 2),
    Sketcher.Constraint("Horizontal", 17, 2, 20, 2),
    Sketcher.Constraint("Vertical", 2, 2, 3, 2),
    Sketcher.Constraint("Equal", 3, 7),
    Sketcher.Constraint("Equal", 7, 12),
    Sketcher.Constraint("DistanceX", 3, 2, 3, 1, Q("0.3 in")),
    Sketcher.Constraint("Angle", 0, Q("-119.999999 deg")),
    Sketcher.Constraint("Angle", 6, Q("-130.000002 deg")),
    Sketcher.Constraint("Angle", 10, Q("-135 deg")),
    Sketcher.Constraint("Angle", 11, Q("-140.000003 deg")),
    Sketcher.Constraint("Angle", 18, Q("-150.000001 deg")),
    Sketcher.Constraint("Distance", 18, Q("0.5 in")),
    Sketcher.Constraint("DistanceX", -1, 1, 17, 2, Q("0.5 in")),
    Sketcher.Constraint("DistanceX", 0, 2, -1, 1, Q("2.25 in")),
    Sketcher.Constraint("DistanceX", -1, 1, 20, 2, Q("0.75 in")),
    Sketcher.Constraint("DistanceY", -1, 1, 0, 2, Q("0.125 in")),
    Sketcher.Constraint("DistanceX", 17, 1, 17, 2, 22.181971),
    Sketcher.Constraint("DistanceX", 9, 2, -1, 1, 27.749158),
    Sketcher.Constraint("DistanceX", 11, 2, -1, 1, 21.98903),
])
sketch8.setExpression("Constraints[52]", "Params.sketch8_width")
sketch8.setExpression("Constraints[58]", "Params.sketch8_length")
pocket4 = body.newObject("PartDesign::Pocket", "Pocket003")
pocket4.Profile = sketch8
pocket4.setExpression("Length", "Params.pocket4_length")
pocket4.Reversed = True
doc.recompute()

fillet = body.newObject("PartDesign::Fillet", "Fillet")
fillet.Base = (pocket4, edges_at(pocket4, [
    (63.5, -38.1, 1.587),
    (-63.5, -38.1, 1.587),
    (-63.5, 38.1, 1.587),
    (63.5, 38.1, 1.587),
]))
fillet.setExpression("Radius", "Params.fillet_radius")

sketch9 = body.newObject("Sketcher::SketchObject", "Sketch008")
sketch9.AttachmentSupport = (doc.getObject("XY_Plane"), [""])
sketch9.MapMode = "FlatFace"
sketch9.AttachmentOffset = App.Placement(V(0, 0, 0.125 * 25.4), App.Rotation())
add_polygon(sketch9, [(-9.660837, 15.875), (16.63156, 30.48), (25.4, 30.48), (25.4, 35.56), (12.7, 35.56), (-17.021839, 19.05), (-38.1, 19.05), (-38.1, 15.875)])
sketch9.addConstraint([
    Sketcher.Constraint("Horizontal", 1),
    Sketcher.Constraint("Vertical", 2),
    Sketcher.Constraint("Horizontal", 3),
    Sketcher.Constraint("Horizontal", 5),
    Sketcher.Constraint("Vertical", 6),
    Sketcher.Constraint("Horizontal", 7),
    Sketcher.Constraint("Parallel", 0, 4),
    Sketcher.Constraint("DistanceX", 3, 2, 3, 1, Q("0.5 in")),
    Sketcher.Constraint("DistanceY", 2, 1, 2, 2, Q("0.2 in")),
    Sketcher.Constraint("DistanceX", -1, 1, 1, 2, Q("1 in")),
    Sketcher.Constraint("DistanceX", 5, 2, 3, 2, Q("2 in")),
    Sketcher.Constraint("DistanceY", -1, 1, 0, 2, Q("1.2 in")),
    Sketcher.Constraint("DistanceY", 6, 2, 6, 1, Q("0.125 in")),
    Sketcher.Constraint("DistanceY", -1, 1, 4, 2, Q("0.75 in")),
    Sketcher.Constraint("DistanceX", 1, 1, 1, 2, 8.76844),
    Sketcher.Constraint("DistanceX", 5, 2, 5, 1, 21.078161),
])
sketch9.setExpression("Constraints[15]", "Params.sketch9_width")
sketch9.setExpression("Constraints[16]", "Params.sketch9_height")
sketch9.setExpression("Constraints[20]", "Params.sketch9_height2")
pocket5 = body.newObject("PartDesign::Pocket", "Pocket004")
pocket5.Profile = sketch9
pocket5.Type = "ThroughAll"

sketch10 = body.newObject("Sketcher::SketchObject", "Sketch009")
sketch10.AttachmentSupport = (doc.getObject("XY_Plane"), [""])
sketch10.MapMode = "FlatFace"
sketch10.AttachmentOffset = App.Placement(V(0, 0, 0.125 * 25.4), App.Rotation())
add_polygon(sketch10, [(25.4, 13.97), (25.4, -5.08), (50.8, -5.08), (50.8, 13.97)])
sketch10.addConstraint([
    Sketcher.Constraint("Vertical", 0),
    Sketcher.Constraint("Horizontal", 1),
    Sketcher.Constraint("Vertical", 2),
    Sketcher.Constraint("Horizontal", 3),
    Sketcher.Constraint("DistanceX", 1, 1, 1, 2, Q("1 in")),
    Sketcher.Constraint("DistanceX", -1, 1, 0, 2, Q("1 in")),
    Sketcher.Constraint("DistanceY", 0, 2, 0, 1, Q("0.75 in")),
    Sketcher.Constraint("DistanceY", 0, 2, -1, 1, Q("0.2 in")),
])
sketch10.setExpression("Constraints[8]", "Params.sketch10_width")
sketch10.setExpression("Constraints[10]", "Params.sketch10_height")
pocket6 = body.newObject("PartDesign::Pocket", "Pocket005")
pocket6.Profile = sketch10
pocket6.Type = "ThroughAll"

doc.recompute()
